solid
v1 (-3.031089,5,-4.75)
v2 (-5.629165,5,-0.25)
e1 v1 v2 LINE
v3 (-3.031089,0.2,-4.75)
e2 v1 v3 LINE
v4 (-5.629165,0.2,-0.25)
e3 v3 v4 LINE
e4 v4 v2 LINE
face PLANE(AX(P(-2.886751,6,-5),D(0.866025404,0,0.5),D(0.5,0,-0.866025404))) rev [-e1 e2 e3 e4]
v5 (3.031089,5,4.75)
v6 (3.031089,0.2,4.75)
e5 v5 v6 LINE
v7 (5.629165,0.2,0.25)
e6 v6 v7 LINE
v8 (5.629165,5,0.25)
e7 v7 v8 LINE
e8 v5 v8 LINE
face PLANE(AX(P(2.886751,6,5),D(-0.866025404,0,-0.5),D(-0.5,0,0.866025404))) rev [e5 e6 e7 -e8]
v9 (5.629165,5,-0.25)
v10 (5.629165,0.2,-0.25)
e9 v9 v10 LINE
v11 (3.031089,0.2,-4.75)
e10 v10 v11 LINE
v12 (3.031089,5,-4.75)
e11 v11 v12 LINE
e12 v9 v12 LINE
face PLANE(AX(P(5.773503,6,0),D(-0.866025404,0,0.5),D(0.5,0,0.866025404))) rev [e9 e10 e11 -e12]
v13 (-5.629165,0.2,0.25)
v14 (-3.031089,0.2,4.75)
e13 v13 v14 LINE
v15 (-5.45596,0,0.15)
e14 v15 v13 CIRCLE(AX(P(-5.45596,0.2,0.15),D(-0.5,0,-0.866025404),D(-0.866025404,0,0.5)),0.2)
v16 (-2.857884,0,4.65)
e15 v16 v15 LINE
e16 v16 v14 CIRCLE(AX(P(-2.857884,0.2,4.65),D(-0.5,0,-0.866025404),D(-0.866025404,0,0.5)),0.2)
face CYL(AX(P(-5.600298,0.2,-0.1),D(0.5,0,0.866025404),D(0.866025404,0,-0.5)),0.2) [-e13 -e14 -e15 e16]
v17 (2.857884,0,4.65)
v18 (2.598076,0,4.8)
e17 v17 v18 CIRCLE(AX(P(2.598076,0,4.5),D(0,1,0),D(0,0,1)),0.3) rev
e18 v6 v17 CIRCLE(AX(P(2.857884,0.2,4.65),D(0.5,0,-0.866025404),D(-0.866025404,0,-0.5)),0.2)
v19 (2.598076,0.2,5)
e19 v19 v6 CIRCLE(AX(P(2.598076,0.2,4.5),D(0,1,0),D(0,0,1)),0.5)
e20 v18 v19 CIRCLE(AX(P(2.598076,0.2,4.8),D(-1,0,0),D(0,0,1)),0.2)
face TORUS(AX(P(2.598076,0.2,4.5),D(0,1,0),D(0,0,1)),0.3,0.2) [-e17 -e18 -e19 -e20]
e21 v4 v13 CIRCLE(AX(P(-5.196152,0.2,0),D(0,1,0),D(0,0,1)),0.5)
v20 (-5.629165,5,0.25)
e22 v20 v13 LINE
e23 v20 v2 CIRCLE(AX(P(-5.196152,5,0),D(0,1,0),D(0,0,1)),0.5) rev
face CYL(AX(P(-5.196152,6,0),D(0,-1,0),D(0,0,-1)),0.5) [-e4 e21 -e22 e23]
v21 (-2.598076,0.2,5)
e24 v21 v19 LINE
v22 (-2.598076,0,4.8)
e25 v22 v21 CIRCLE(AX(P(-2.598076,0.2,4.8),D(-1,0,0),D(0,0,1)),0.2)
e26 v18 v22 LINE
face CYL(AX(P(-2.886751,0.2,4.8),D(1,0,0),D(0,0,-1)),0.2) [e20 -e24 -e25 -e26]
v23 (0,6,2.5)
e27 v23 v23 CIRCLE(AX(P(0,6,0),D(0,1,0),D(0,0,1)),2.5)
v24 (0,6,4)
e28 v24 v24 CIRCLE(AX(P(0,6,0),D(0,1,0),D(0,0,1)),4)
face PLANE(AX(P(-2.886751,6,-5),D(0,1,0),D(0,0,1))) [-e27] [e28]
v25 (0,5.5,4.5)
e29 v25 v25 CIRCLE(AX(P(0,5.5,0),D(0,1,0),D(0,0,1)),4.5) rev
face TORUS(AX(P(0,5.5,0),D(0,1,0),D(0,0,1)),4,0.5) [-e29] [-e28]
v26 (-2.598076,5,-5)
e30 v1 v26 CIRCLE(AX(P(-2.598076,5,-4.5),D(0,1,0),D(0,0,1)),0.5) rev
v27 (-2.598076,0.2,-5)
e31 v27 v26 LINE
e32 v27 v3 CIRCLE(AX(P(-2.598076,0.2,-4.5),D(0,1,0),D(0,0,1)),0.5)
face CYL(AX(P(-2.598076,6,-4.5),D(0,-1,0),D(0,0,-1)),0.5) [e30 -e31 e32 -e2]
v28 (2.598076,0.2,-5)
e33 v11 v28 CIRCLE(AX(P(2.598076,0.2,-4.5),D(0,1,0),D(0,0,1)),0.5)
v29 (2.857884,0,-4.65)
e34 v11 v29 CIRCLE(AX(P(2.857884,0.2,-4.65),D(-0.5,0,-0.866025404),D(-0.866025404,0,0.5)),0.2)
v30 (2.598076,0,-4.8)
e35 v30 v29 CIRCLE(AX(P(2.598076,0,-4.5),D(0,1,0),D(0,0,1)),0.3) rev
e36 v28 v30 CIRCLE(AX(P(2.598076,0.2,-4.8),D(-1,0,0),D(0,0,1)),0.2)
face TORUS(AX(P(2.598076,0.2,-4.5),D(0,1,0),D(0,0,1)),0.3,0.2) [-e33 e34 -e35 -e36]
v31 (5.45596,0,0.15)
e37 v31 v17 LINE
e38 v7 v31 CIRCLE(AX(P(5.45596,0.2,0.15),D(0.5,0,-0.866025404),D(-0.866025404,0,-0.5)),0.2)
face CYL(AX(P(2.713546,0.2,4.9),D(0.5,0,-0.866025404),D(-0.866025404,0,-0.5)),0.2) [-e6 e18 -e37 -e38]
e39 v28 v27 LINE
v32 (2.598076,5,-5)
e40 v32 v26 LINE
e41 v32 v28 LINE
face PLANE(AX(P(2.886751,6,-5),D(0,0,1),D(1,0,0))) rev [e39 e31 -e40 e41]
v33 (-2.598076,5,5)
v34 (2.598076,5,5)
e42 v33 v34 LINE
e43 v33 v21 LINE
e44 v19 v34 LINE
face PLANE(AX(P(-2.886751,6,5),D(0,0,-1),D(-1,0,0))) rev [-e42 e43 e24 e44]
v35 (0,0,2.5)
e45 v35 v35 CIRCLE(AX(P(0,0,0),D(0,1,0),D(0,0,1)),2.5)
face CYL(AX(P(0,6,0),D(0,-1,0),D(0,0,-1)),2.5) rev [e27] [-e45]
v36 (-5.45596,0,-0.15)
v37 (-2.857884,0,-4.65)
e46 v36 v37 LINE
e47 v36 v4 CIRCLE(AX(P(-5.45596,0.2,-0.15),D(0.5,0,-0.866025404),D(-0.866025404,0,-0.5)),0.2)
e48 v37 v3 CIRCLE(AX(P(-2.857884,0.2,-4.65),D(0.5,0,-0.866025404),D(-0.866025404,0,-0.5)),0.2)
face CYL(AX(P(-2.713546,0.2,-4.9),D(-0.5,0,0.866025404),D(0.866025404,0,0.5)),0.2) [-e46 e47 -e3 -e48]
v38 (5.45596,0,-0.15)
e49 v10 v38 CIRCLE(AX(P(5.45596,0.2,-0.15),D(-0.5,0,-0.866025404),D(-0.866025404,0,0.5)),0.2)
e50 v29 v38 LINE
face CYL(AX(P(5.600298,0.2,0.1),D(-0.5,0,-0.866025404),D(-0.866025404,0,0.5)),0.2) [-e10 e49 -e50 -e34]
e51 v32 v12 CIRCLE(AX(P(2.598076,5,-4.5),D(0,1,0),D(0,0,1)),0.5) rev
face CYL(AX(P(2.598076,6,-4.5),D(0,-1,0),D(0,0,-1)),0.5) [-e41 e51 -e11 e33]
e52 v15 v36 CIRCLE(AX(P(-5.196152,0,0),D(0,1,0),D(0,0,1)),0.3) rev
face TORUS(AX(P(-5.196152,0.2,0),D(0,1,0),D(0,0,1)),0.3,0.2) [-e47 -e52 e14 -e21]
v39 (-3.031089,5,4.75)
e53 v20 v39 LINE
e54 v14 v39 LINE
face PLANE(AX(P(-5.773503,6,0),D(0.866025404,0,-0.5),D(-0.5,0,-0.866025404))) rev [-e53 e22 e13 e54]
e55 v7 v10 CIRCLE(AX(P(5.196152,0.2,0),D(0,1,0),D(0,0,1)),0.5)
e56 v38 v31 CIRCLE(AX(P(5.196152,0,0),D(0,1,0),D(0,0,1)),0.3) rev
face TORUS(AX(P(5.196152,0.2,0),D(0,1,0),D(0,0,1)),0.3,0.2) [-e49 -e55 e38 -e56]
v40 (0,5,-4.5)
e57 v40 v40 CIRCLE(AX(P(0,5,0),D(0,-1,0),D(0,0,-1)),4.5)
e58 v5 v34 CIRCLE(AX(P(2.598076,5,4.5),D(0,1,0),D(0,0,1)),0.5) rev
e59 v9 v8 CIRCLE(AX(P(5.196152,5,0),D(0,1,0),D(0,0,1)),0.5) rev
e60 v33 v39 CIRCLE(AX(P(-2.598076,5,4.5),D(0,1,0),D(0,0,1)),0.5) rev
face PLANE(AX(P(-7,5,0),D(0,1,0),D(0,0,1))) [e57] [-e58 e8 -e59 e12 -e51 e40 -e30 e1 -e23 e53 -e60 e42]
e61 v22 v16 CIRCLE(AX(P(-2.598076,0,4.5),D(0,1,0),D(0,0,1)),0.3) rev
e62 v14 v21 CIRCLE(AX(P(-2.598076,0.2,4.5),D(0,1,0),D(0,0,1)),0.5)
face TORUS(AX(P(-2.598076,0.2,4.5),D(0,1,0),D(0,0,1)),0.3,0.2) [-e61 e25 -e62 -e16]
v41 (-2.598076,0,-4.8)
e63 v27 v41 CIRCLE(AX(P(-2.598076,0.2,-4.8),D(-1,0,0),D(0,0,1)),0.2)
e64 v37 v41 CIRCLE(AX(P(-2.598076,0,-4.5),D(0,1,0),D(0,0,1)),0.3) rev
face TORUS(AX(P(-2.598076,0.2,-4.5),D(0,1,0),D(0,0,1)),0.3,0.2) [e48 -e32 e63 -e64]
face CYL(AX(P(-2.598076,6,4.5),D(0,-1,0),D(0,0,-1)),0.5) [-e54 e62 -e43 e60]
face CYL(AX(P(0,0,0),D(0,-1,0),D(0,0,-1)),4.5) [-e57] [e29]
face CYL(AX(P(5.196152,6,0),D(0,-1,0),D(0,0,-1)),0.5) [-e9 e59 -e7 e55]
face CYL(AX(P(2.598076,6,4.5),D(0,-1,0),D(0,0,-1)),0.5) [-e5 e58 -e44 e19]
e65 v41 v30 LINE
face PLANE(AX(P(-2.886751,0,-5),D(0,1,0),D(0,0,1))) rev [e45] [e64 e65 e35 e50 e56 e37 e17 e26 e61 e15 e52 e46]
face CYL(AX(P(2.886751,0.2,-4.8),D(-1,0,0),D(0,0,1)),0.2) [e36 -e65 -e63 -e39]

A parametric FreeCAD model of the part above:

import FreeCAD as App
import Part
import Sketcher
from FreeCAD import Vector
Q = App.Units.Quantity


def edges_at(feature, points):
    """Names of the edges that pass closest to the given points."""
    edges = feature.Shape.Edges
    near = lambda p: min(range(len(edges)), key=lambda i: edges[i].distToShape(Part.Vertex(*p))[0])
    return sorted({f"Edge{near(p) + 1}" for p in points})


def add_polygon(sketch, points):
    """Adds a closed chain of lines whose ends are joined by coincident constraints."""
    first, n = sketch.GeometryCount, len(points)
    for a, b in zip(points, points[1:] + points[:1]):
        sketch.addGeometry(Part.LineSegment(App.Vector(*a, 0), App.Vector(*b, 0)), False)
    for i in range(n):
        sketch.addConstraint(Sketcher.Constraint("Coincident", first + i, 2, first + (i + 1) % n, 1))

doc = App.newDocument("Part")
body = doc.addObject("PartDesign::Body", "Body")

sketch1 = body.newObject("Sketcher::SketchObject", "Sketch")
sketch1.AttachmentSupport = (doc.getObject("XZ_Plane"), [""])
sketch1.MapMode = "FlatFace"
add_polygon(sketch1, [(-2.9, -5), (-5.8, 0), (-2.9, 5), (2.9, 5), (5.8, 0), (2.9, -5)])
sketch1.addGeometry(Part.Circle(Vector(0, 0, 0), Vector(0, 0, 1), 2.5), False)
sketch1.addConstraint([
    Sketcher.Constraint("Horizontal", 2),
    Sketcher.Constraint("Horizontal", 5),
    Sketcher.Constraint("Coincident", 6, 3, -1, 1),
    Sketcher.Constraint("Symmetric", 0, 2, 3, 2, -1, 1),
    Sketcher.Constraint("Symmetric", 1, 2, 4, 2, -1, 1),
    Sketcher.Constraint("PointOnObject", 0, 2, -1),
    Sketcher.Constraint("Parallel", 0, 3),
    Sketcher.Constraint("Vertical", 2, 2, 4, 2),
    Sketcher.Constraint("Diameter", 6, 5.0),
    Sketcher.Constraint("Angle", 0, Q("120 deg")),
    Sketcher.Constraint("DistanceY", -1, 1, 1, 2, 5.0),
    Sketcher.Constraint("DistanceX", 2, 1, 2, 2, 5.773503),
])
pad1 = body.newObject("PartDesign::Pad", "Pad")
pad1.Profile = sketch1
pad1.Length = 6
pad1.Reversed = True
doc.recompute()

fillet = body.newObject("PartDesign::Fillet", "Fillet")
fillet.Base = (pad1, edges_at(pad1, [
    (2.887, 3, -5),
    (5.774, 3, 0),
    (2.887, 3, 5),
    (-2.887, 3, 5),
    (-5.774, 3, 0),
    (-2.887, 3, -5),
]))
fillet.Radius = 0.5
doc.recompute()

fillet2 = body.newObject("PartDesign::Fillet", "Fillet001")
fillet2.Base = (fillet, edges_at(fillet, [
    (-4.33, 0, -2.5),
    (-4.33, 6, -2.5),
    (0, 0, -5),
    (4.33, 0, -2.5),
    (4.33, 0, 2.5),
    (0, 0, 5),
    (-4.33, 0, 2.5),
    (-2.848, 0, 4.933),
    (-5.696, 0, 0),
    (2.848, 0, 4.933),
    (5.696, 0, 0),
    (2.848, 0, -4.933),
    (-2.848, 0, -4.933),
    (0, 6, -5),
    (-4.33, 6, 2.5),
    (0, 6, 5),
    (4.33, 6, 2.5),
    (4.33, 6, -2.5),
    (-2.848, 6, 4.933),
    (-5.696, 6, 0),
    (2.848, 6, 4.933),
    (5.696, 6, 0),
    (2.848, 6, -4.933),
    (-2.848, 6, -4.933),
]))
fillet2.Radius = 0.2

sketch2 = body.newObject("Sketcher::SketchObject", "Sketch001")
sketch2.AttachmentSupport = (doc.getObject("XY_Plane"), [""])
sketch2.MapMode = "FlatFace"
add_polygon(sketch2, [(-7, 6), (-7, 5), (-4.5, 5), (-4.5, 6)])
sketch2.addConstraint([
    Sketcher.Constraint("Vertical", 0),
    Sketcher.Constraint("Horizontal", 1),
    Sketcher.Constraint("Vertical", 2),
    Sketcher.Constraint("Horizontal", 3),
    Sketcher.Constraint("DistanceY", 0, 2, 0, 1, 1.0),
    Sketcher.Constraint("DistanceX", 1, 1, 1, 2, 2.5),
    Sketcher.Constraint("DistanceX", 0, 2, -1, 1, 7.0),
    Sketcher.Constraint("DistanceY", -1, 1, 0, 2, 5.0),
])
groove = body.newObject("PartDesign::Groove", "Groove")
groove.Profile = sketch2
groove.ReferenceAxis = (sketch2, ["V_Axis"])
groove.Angle = 360
doc.recompute()

fillet3 = body.newObject("PartDesign::Fillet", "Fillet002")
fillet3.Base = (groove, edges_at(groove, [(4.5, 6, 0)]))
fillet3.Radius = 0.5

doc.recompute()
